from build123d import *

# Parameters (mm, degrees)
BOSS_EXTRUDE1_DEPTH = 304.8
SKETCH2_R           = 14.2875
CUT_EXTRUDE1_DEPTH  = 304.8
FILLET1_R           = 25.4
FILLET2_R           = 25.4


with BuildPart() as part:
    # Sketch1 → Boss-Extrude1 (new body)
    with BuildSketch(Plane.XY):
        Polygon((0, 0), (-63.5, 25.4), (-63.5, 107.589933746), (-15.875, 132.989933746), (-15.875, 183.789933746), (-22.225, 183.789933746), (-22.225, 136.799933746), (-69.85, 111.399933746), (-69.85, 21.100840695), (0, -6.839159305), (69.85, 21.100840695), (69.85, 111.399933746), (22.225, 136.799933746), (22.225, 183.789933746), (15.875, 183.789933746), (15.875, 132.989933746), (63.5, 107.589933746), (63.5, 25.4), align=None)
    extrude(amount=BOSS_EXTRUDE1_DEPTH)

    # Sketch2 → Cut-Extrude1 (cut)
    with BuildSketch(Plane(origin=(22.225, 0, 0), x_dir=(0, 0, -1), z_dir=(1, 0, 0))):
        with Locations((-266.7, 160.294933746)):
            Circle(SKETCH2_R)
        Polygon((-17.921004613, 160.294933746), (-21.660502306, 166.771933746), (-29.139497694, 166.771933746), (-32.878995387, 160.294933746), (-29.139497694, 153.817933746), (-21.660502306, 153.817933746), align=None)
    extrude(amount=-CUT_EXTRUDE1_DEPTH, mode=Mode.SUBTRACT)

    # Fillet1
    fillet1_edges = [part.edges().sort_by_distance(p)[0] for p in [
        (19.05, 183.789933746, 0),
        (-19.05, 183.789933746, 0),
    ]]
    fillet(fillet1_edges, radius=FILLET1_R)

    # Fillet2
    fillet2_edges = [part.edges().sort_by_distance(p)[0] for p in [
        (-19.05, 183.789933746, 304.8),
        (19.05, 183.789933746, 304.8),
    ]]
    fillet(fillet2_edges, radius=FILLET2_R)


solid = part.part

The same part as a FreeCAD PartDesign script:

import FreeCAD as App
import Part
import Sketcher

V = App.Vector
Q = App.Units.Quantity


def edges_at(feature, points):
    """Names of the edges that pass closest to the given points."""
    edges = feature.Shape.Edges
    near = lambda p: min(range(len(edges)), key=lambda i: edges[i].distToShape(Part.Vertex(*p))[0])
    return sorted({f"Edge{near(p) + 1}" for p in points})


def add_polygon(sketch, points):
    """Adds a closed chain of lines whose ends are joined by coincident constraints."""
    first, n = sketch.GeometryCount, len(points)
    for a, b in zip(points, points[1:] + points[:1]):
        sketch.addGeometry(Part.LineSegment(App.Vector(*a, 0), App.Vector(*b, 0)), False)
    for i in range(n):
        sketch.addConstraint(Sketcher.Constraint("Coincident", first + i, 2, first + (i + 1) % n, 1))

doc = App.newDocument("Part")
params = doc.addObject("Spreadsheet::Sheet", "Params")
for row, (alias, value) in enumerate([
    ("sketch1_height", "2 in"),
    ("sketch1_width", "0.25 in"),
    ("sketch1_height2", "1.85 in"),
    ("pad1_length", "12 in"),
    ("sketch2_diameter", "1.125 in"),
    ("pocket1_length", "12 in"),
    ("fillet_radius", "1 in"),
    ("fillet2_radius", "1 in"),
], start=1):
    params.set(f"A{row}", alias)
    params.set(f"B{row}", "=" + value)
    params.setAlias(f"B{row}", alias)

body = doc.addObject("PartDesign::Body", "Body")

# Sketch on XY plane
sketch1 = body.newObject("Sketcher::SketchObject", "Sketch")
sketch1.AttachmentSupport = (doc.getObject("XY_Plane"), [""])
sketch1.MapMode = "FlatFace"
add_polygon(sketch1, [(0, 0), (-64, 25), (-64, 108), (-16, 133), (-16, 184), (-22, 184), (-22, 137), (-70, 111), (-70, 21), (0, -7), (70, 21), (70, 111), (22, 137), (22, 184), (16, 184), (16, 133), (64, 108), (64, 25)])  # lines 0-17
sketch1.addConstraint([
    Sketcher.Constraint("Vertical", 1),
    Sketcher.Constraint("Vertical", 3),
    Sketcher.Constraint("Horizontal", 4),
    Sketcher.Constraint("Vertical", 5),
    Sketcher.Constraint("Vertical", 7),
    Sketcher.Constraint("Vertical", 10),
    Sketcher.Constraint("Vertical", 12),
    Sketcher.Constraint("Horizontal", 13),
    Sketcher.Constraint("Vertical", 14),
    Sketcher.Constraint("Vertical", 16),
    Sketcher.Constraint("Coincident", 17, 2, -1, 1),
    Sketcher.Constraint("Symmetric", 7, 2, 9, 2, -2),
    Sketcher.Constraint("Symmetric", 5, 2, 11, 2, -2),
    Sketcher.Constraint("Symmetric", 3, 2, 13, 2, -2),
    Sketcher.Constraint("Symmetric", 1, 2, 15, 2, -2),
    Sketcher.Constraint("PointOnObject", 8, 2, -2),
    Sketcher.Constraint("Parallel", 2, 6),
    Sketcher.Constraint("Parallel", 0, 8),
    Sketcher.Constraint("Parallel", 11, 15),
    Sketcher.Constraint("Parallel", 9, 17),
    Sketcher.Constraint("Horizontal", 6, 2, 10, 2),
    Sketcher.Constraint("Equal", 2, 6),
    Sketcher.Constraint("DistanceY", 3, 1, 3, 2, Q("2 in")),
    Sketcher.Constraint("DistanceY", -1, 1, 0, 2, Q("1 in")),
    Sketcher.Constraint("DistanceY", 1, 2, 2, 2, Q("1 in")),
    Sketcher.Constraint("DistanceX", 4, 2, 4, 1, Q("0.25 in")),
    Sketcher.Constraint("DistanceY", 5, 2, 5, 1, Q("1.85 in")),
    Sketcher.Constraint("DistanceX", 0, 2, -1, 1, Q("2.5 in")),
    Sketcher.Constraint("DistanceX", 2, 2, 11, 2, Q("1.5 in")),
    Sketcher.Constraint("DistanceY", 1, 1, 1, 2, 82.189934),
    Sketcher.Constraint("DistanceY", 7, 2, 7, 1, 90.299093),
])
sketch1.setExpression("Constraints[40]", "Params.sketch1_height")
sketch1.setExpression("Constraints[43]", "Params.sketch1_width")
sketch1.setExpression("Constraints[44]", "Params.sketch1_height2")
pad1 = body.newObject("PartDesign::Pad", "Pad")
pad1.Profile = sketch1
pad1.setExpression("Length", "Params.pad1_length")

# Sketch on YZ plane
sketch2 = body.newObject("Sketcher::SketchObject", "Sketch001")
sketch2.AttachmentSupport = (doc.getObject("YZ_Plane"), [""])
sketch2.MapMode = "FlatFace"
sketch2.AttachmentOffset = App.Placement(V(0, 0, 0.875 * 25.4), App.Rotation())
sketch2.addGeometry(Part.Circle(V(160, 267, 0), V(0, 0, 1), 14), False)  # 0
add_polygon(sketch2, [(160, 18), (167, 22), (167, 29), (160, 33), (154, 29), (154, 22)])  # lines 1-6
sketch2.addConstraint([
    Sketcher.Constraint("Vertical", 2),
    Sketcher.Constraint("Vertical", 5),
    Sketcher.Constraint("Parallel", 1, 4),
    Sketcher.Constraint("Parallel", 3, 6),
    Sketcher.Constraint("Horizontal", 2, 2, 4, 2),
    Sketcher.Constraint("Horizontal", 1, 2, 5, 2),
    Sketcher.Constraint("Vertical", 0, 3, 3, 2),
    Sketcher.Constraint("Vertical", 3, 2, 6, 2),
    Sketcher.Constraint("Diameter", 0, Q("1.125 in")),
    Sketcher.Constraint("Angle", 1, Q("30 deg")),
    Sketcher.Constraint("DistanceY", -1, 1, 0, 3, Q("10.5 in")),
    Sketcher.Constraint("DistanceX", 4, 2, 2, 2, Q("0.51 in")),
    Sketcher.Constraint("DistanceY", 2, 1, 2, 2, 7.478995),
    Sketcher.Constraint("DistanceX", -1, 1, 0, 3, 160.294934),
    Sketcher.Constraint("DistanceY", -1, 1, 1, 2, 21.660502),
])
sketch2.setExpression("Constraints[14]", "Params.sketch2_diameter")
pocket1 = body.newObject("PartDesign::Pocket", "Pocket")
pocket1.Profile = sketch2
pocket1.setExpression("Length", "Params.pocket1_length")
doc.recompute()

fillet = body.newObject("PartDesign::Fillet", "Fillet")
fillet.Base = (pocket1, edges_at(pocket1, [(19.05, 183.79, 0), (-19.05, 183.79, 0)]))
fillet.setExpression("Radius", "Params.fillet_radius")
doc.recompute()

fillet2 = body.newObject("PartDesign::Fillet", "Fillet001")
fillet2.Base = (fillet, edges_at(fillet, [(-19.05, 183.79, 304.8), (19.05, 183.79, 304.8)]))
fillet2.setExpression("Radius", "Params.fillet2_radius")

doc.recompute()
